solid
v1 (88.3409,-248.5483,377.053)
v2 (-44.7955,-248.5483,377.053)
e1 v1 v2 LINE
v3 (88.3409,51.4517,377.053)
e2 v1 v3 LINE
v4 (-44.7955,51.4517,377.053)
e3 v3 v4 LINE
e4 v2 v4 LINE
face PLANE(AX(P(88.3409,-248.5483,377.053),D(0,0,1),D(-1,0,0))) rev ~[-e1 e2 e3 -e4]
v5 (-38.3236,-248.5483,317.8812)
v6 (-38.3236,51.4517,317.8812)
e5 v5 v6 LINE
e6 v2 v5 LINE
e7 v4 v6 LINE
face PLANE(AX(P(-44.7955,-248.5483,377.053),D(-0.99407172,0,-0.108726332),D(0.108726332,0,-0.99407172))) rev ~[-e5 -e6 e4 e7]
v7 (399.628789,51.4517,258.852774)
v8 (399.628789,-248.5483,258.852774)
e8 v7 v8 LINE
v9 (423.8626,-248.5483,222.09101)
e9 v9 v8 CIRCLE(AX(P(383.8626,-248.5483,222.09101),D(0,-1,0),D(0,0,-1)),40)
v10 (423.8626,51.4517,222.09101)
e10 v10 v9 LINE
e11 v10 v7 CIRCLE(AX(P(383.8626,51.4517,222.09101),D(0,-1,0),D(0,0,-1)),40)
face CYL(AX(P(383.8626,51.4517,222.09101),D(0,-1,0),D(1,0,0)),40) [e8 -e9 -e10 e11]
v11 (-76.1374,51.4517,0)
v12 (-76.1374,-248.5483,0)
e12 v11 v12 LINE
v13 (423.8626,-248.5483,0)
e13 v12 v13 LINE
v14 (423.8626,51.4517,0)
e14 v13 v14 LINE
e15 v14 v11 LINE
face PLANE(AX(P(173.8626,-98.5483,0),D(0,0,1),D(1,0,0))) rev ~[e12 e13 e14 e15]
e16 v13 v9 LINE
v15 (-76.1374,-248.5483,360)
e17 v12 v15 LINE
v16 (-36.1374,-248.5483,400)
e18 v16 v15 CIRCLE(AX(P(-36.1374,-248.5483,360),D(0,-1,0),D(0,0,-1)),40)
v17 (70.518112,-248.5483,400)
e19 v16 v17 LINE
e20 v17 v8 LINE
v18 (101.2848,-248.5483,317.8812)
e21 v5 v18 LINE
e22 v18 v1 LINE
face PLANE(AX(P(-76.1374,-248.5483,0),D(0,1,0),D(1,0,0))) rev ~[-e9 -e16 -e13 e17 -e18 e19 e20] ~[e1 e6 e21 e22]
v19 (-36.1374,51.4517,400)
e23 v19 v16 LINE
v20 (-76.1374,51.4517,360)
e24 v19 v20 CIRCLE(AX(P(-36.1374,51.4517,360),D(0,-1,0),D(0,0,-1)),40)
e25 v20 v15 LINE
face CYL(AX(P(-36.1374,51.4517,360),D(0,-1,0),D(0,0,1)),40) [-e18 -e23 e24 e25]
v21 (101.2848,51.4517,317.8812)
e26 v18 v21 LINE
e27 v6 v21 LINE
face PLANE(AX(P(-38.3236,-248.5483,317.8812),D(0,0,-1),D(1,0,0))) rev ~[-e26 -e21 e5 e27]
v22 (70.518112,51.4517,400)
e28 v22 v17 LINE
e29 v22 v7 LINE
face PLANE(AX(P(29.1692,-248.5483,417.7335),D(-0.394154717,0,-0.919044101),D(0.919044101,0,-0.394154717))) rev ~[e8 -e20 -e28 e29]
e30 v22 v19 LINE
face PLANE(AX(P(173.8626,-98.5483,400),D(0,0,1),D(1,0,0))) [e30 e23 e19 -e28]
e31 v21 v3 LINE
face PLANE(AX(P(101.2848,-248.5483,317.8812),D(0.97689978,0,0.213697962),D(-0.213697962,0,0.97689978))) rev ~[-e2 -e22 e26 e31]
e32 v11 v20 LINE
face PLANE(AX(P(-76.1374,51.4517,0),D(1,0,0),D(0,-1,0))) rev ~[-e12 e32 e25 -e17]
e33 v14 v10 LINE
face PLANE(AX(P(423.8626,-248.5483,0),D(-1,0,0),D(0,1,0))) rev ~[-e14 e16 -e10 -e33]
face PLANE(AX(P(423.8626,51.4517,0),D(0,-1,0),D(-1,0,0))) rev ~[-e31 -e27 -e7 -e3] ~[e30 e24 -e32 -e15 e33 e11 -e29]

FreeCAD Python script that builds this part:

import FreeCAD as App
import Part
import Sketcher
Q = App.Units.Quantity


def edges_at(feature, points):
    """Names of the edges that pass closest to the given points."""
    edges = feature.Shape.Edges
    near = lambda p: min(range(len(edges)), key=lambda i: edges[i].distToShape(Part.Vertex(*p))[0])
    return sorted({f"Edge{near(p) + 1}" for p in points})

doc = App.newDocument("Part")
body = doc.addObject("PartDesign::Body", "Body")

sketch1 = body.newObject("Sketcher::SketchObject", "Sketch")
sketch1.AttachmentSupport = (doc.getObject("XY_Plane"), [""])
sketch1.MapMode = "FlatFace"
sketch1.addGeometry([
    Part.LineSegment(App.Vector(-76, 51, 0), App.Vector(-76, -249, 0)),
    Part.LineSegment(App.Vector(-76, -249, 0), App.Vector(424, -249, 0)),
    Part.LineSegment(App.Vector(424, -249, 0), App.Vector(424, 51, 0)),
    Part.LineSegment(App.Vector(424, 51, 0), App.Vector(-76, 51, 0)),
], False)
sketch1.addConstraint([
    Sketcher.Constraint("Coincident", 0, 2, 1, 1),
    Sketcher.Constraint("Coincident", 1, 2, 2, 1),
    Sketcher.Constraint("Coincident", 2, 2, 3, 1),
    Sketcher.Constraint("Coincident", 3, 2, 0, 1),
    Sketcher.Constraint("Vertical", 0),
    Sketcher.Constraint("Horizontal", 1),
    Sketcher.Constraint("Vertical", 2),
    Sketcher.Constraint("Horizontal", 3),
    Sketcher.Constraint("DistanceX", 1, 1, 1, 2, Q("500 mm")),
    Sketcher.Constraint("DistanceY", 0, 2, 0, 1, Q("300 mm")),
    Sketcher.Constraint("DistanceX", 0, 2, -1, 1, Q("76.1374 mm")),
    Sketcher.Constraint("DistanceY", 0, 2, -1, 1, Q("248.5483 mm")),
])
pad1 = body.newObject("PartDesign::Pad", "Pad")
pad1.Profile = sketch1
pad1.Length = 400

sketch2 = body.newObject("Sketcher::SketchObject", "Sketch001")
sketch2.AttachmentSupport = (doc.getObject("XZ_Plane"), [""])
sketch2.MapMode = "FlatFace"
sketch2.AttachmentOffset = App.Placement(App.Vector(0, 0, 248.5483), App.Rotation())
sketch2.addGeometry([
    Part.LineSegment(App.Vector(456, 445, 0), App.Vector(29, 418, 0)),
    Part.LineSegment(App.Vector(29, 418, 0), App.Vector(465, 231, 0)),
    Part.LineSegment(App.Vector(465, 231, 0), App.Vector(456, 445, 0)),
    Part.LineSegment(App.Vector(88, 377, 0), App.Vector(-45, 377, 0)),
    Part.LineSegment(App.Vector(-45, 377, 0), App.Vector(-38, 318, 0)),
    Part.LineSegment(App.Vector(-38, 318, 0), App.Vector(101, 318, 0)),
    Part.LineSegment(App.Vector(101, 318, 0), App.Vector(88, 377, 0)),
], False)
sketch2.addConstraint([
    Sketcher.Constraint("Coincident", 0, 2, 1, 1),
    Sketcher.Constraint("Coincident", 1, 2, 2, 1),
    Sketcher.Constraint("Coincident", 2, 2, 0, 1),
    Sketcher.Constraint("Coincident", 3, 2, 4, 1),
    Sketcher.Constraint("Coincident", 4, 2, 5, 1),
    Sketcher.Constraint("Coincident", 5, 2, 6, 1),
    Sketcher.Constraint("Coincident", 6, 2, 3, 1),
    Sketcher.Constraint("Horizontal", 3),
    Sketcher.Constraint("Horizontal", 5),
    Sketcher.Constraint("Angle", 2, Q("92.2312 deg")),
    Sketcher.Constraint("Angle", 6, Q("102.3392 deg")),
    Sketcher.Constraint("DistanceX", 4, 2, 1, 2, Q("502.96 mm")),
    Sketcher.Constraint("Distance", 1, Q("473.826 mm")),
    Sketcher.Constraint("Distance", 2, Q("213.735 mm")),
    Sketcher.Constraint("Distance", 6, Q("60.571 mm")),
    Sketcher.Constraint("DistanceX", 3, 2, 3, 1, Q("133.1364 mm")),
    Sketcher.Constraint("DistanceX", 5, 1, 5, 2, Q("139.6084 mm")),
    Sketcher.Constraint("DistanceY", -1, 1, 3, 2, Q("377.053 mm")),
    Sketcher.Constraint("DistanceX", -1, 1, 6, 2, Q("88.341 mm")),
    Sketcher.Constraint("DistanceX", 0, 2, 1, 2, Q("435.467 mm")),
    Sketcher.Constraint("DistanceY", -1, 1, 0, 2, Q("417.7335 mm")),
])
pocket1 = body.newObject("PartDesign::Pocket", "Pocket")
pocket1.Profile = sketch2
pocket1.Type = "ThroughAll"
doc.recompute()

fillet = body.newObject("PartDesign::Fillet", "Fillet")
fillet.Base = (pocket1, edges_at(pocket1, [(-76.137, -98.548, 400), (423.863, -98.548, 248.459)]))
fillet.Radius = 40

doc.recompute()
